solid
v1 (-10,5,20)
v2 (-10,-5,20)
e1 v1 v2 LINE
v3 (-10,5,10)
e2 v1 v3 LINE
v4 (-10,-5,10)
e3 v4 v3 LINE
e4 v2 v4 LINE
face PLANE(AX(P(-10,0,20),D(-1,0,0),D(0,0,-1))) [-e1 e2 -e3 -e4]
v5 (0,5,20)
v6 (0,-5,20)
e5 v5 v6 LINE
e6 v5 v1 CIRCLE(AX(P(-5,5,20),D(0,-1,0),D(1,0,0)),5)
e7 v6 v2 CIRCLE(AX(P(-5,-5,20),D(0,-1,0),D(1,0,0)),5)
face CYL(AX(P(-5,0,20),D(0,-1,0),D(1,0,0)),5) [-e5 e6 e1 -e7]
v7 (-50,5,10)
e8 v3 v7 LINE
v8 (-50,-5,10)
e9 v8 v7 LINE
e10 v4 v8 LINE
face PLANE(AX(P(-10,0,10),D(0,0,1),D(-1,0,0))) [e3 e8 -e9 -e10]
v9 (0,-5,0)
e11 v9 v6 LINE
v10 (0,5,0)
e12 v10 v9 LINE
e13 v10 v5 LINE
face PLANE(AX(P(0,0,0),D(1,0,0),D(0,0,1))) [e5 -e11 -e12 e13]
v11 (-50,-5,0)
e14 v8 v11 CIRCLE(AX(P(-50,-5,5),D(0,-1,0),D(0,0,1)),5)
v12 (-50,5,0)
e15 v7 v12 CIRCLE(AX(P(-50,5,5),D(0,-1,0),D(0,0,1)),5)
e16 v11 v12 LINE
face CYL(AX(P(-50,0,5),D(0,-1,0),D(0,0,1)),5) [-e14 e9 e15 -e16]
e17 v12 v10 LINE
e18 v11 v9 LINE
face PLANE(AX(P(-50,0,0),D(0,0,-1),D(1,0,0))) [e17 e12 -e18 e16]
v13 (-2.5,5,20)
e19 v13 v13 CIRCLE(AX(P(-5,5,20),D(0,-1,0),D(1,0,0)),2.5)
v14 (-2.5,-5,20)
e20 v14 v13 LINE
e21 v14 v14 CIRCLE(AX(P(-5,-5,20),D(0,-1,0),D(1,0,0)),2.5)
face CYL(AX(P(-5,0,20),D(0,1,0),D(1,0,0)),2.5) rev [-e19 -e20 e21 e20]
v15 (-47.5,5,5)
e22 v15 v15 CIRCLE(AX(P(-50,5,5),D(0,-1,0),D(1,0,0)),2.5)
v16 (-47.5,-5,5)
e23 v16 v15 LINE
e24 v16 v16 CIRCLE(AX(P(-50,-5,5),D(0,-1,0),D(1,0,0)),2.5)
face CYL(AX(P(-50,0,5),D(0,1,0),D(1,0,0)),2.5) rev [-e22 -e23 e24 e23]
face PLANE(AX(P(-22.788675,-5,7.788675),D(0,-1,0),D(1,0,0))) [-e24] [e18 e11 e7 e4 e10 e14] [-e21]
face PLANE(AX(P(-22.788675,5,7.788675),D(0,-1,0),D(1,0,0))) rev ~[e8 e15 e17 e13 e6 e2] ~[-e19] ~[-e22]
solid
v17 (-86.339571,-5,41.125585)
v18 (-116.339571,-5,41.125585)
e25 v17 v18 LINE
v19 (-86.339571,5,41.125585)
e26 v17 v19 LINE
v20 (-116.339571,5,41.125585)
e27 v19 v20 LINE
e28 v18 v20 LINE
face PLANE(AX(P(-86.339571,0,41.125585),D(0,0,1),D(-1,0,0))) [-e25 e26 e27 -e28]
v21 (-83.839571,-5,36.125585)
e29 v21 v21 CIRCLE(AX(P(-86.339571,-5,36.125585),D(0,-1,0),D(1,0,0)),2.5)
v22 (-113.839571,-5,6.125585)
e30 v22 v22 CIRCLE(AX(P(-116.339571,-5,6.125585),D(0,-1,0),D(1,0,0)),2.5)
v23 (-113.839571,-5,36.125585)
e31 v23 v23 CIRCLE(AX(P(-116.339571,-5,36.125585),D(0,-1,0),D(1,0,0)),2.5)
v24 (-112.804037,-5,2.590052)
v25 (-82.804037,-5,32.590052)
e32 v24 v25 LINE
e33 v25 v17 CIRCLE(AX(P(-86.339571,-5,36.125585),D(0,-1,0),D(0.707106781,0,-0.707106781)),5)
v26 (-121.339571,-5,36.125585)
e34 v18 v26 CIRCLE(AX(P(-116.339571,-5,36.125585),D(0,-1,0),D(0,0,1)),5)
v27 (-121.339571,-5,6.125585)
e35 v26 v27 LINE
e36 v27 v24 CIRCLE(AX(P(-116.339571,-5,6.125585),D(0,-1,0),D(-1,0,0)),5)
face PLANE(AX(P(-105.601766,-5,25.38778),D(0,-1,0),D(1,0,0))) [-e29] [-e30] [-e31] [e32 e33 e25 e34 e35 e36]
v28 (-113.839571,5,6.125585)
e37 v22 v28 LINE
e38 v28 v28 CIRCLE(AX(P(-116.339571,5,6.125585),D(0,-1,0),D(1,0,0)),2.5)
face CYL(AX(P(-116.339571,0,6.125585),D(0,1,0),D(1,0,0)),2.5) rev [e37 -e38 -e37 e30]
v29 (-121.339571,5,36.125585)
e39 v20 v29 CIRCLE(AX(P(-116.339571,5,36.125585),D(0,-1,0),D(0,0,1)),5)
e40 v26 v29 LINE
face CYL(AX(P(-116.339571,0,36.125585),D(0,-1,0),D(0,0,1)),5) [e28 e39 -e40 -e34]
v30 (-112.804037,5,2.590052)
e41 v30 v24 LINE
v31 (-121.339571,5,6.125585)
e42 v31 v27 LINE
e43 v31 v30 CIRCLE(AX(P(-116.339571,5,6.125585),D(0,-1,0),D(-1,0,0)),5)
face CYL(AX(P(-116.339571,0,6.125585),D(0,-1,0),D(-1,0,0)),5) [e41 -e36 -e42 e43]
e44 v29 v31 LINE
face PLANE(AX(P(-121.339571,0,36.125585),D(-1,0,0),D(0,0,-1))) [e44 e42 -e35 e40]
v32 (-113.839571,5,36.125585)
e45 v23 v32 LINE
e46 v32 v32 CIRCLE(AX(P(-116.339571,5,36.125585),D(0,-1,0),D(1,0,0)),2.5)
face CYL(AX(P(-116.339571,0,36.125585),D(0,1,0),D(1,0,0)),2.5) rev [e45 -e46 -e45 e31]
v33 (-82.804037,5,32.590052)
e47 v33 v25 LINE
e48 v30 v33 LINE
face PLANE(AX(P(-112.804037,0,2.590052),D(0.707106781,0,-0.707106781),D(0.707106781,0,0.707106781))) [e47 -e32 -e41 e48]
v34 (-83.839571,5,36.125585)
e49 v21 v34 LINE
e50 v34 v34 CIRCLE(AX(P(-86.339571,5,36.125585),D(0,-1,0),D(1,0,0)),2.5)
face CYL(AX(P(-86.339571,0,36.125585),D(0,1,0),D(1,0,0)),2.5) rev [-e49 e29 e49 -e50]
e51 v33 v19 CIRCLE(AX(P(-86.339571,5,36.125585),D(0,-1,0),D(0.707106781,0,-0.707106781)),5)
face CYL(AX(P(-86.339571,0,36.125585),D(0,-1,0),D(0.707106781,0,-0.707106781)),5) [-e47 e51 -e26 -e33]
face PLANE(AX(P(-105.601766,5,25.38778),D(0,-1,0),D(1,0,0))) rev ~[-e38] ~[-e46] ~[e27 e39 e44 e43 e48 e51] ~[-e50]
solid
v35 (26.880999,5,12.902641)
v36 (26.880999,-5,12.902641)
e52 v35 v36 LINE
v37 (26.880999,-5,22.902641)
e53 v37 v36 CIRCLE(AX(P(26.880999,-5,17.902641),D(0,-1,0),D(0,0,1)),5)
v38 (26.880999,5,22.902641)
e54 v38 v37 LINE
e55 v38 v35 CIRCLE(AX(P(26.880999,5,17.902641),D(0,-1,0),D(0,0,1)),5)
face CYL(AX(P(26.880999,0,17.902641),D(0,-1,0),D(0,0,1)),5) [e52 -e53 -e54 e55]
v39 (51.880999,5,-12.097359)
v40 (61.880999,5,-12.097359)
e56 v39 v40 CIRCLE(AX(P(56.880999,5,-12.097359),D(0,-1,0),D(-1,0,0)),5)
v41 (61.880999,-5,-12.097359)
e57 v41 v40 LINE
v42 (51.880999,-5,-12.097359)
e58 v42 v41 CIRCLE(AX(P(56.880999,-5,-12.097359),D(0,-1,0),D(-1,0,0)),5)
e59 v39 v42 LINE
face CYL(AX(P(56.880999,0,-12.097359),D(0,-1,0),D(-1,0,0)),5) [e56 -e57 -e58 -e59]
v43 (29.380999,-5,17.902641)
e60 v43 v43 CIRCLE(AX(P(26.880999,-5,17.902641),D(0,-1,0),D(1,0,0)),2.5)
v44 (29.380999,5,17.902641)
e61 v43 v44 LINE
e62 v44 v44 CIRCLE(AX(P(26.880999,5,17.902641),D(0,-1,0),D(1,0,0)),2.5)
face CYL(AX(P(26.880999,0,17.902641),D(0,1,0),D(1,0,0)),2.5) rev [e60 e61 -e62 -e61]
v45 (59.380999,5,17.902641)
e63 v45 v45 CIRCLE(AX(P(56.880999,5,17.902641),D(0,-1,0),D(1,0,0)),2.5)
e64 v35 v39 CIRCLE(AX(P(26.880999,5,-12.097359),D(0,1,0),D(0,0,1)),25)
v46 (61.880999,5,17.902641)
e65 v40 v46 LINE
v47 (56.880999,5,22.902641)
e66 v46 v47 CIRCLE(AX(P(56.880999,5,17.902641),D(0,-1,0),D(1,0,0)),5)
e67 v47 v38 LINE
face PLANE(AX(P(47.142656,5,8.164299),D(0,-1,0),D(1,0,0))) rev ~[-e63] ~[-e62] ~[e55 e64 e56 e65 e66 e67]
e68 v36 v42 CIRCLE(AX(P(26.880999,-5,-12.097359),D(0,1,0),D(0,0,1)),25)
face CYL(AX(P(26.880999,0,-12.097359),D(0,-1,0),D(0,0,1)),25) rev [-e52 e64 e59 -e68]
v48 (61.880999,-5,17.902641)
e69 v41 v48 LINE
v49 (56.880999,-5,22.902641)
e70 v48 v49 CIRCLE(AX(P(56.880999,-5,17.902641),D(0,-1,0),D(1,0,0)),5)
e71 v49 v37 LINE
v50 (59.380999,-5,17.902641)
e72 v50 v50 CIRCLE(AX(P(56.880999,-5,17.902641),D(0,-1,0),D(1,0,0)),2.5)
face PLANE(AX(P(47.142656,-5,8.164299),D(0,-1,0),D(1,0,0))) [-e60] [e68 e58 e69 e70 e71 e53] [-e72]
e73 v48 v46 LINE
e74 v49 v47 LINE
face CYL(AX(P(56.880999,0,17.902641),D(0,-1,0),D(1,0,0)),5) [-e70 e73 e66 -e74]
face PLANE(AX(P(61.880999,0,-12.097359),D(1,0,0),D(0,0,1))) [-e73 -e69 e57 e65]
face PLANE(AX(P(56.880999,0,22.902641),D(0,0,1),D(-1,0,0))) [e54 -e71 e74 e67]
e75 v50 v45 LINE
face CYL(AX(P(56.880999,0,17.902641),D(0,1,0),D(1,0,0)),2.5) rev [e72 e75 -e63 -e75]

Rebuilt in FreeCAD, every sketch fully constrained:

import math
import FreeCAD as App
import Part
import Sketcher
from FreeCAD import Vector
Q = App.Units.Quantity

doc = App.newDocument("Part")
body = doc.addObject("PartDesign::Body", "Body")

# Sketch on XZ plane
sketch1 = doc.addObject("Sketcher::SketchObject", "Sketch")
body.addObject(sketch1)
sketch1.AttachmentSupport = (doc.XZ_Plane, [""])
sketch1.MapMode = "FlatFace"
sketch1.addGeometry([
    Part.LineSegment(Vector(-50, 0, 0), Vector(0, 0, 0)),  # 0
    Part.LineSegment(Vector(0, 0, 0), Vector(0, 20, 0)),  # 1
    Part.ArcOfCircle(Part.Circle(Vector(-5, 20, 0), Vector(0, 0, 1), 5), math.radians(0), math.radians(180)),  # 2
    Part.LineSegment(Vector(-10, 20, 0), Vector(-10, 10, 0)),  # 3
    Part.LineSegment(Vector(-10, 10, 0), Vector(-50, 10, 0)),  # 4
    Part.ArcOfCircle(Part.Circle(Vector(-50, 5, 0), Vector(0, 0, 1), 5), math.radians(90), math.radians(270)),  # 5
    Part.Circle(Vector(-50, 5, 0), Vector(0, 0, 1), 2.5),  # 6
    Part.Circle(Vector(-5, 20, 0), Vector(0, 0, 1), 2.5),  # 7
], False)
sketch1.addConstraint([
    Sketcher.Constraint("Coincident", 0, 2, 1, 1),
    Sketcher.Constraint("Tangent", 1, 2, 2, 1),
    Sketcher.Constraint("Tangent", 2, 2, 3, 1),
    Sketcher.Constraint("Coincident", 3, 2, 4, 1),
    Sketcher.Constraint("Tangent", 4, 2, 5, 1),
    Sketcher.Constraint("Tangent", 5, 2, 0, 1),
    Sketcher.Constraint("Horizontal", 0),
    Sketcher.Constraint("Vertical", 1),
    Sketcher.Constraint("Vertical", 3),
    Sketcher.Constraint("Horizontal", 4),
    Sketcher.Constraint("Coincident", 0, 2, -1, 1),
    Sketcher.Constraint("Coincident", 6, 3, 5, 3),
    Sketcher.Constraint("Coincident", 7, 3, 2, 3),
    Sketcher.Constraint("Equal", 2, 5),
    Sketcher.Constraint("Equal", 6, 7),
    Sketcher.Constraint("Diameter", 6, Q("5 mm")),
    Sketcher.Constraint("Radius", 2, Q("5 mm")),
    Sketcher.Constraint("DistanceX", 0, 1, 0, 2, Q("50 mm")),
    Sketcher.Constraint("DistanceY", 1, 1, 1, 2, Q("20 mm")),
])
pad1 = doc.addObject("PartDesign::Pad", "Pad")
body.addObject(pad1)
pad1.Profile = sketch1
pad1.Length = 10
pad1.Midplane = True
body2 = doc.addObject("PartDesign::Body", "Body001")

# Sketch on XZ plane
sketch2 = doc.addObject("Sketcher::SketchObject", "Sketch001")
body2.addObject(sketch2)
sketch2.AttachmentSupport = (doc.getObject("XZ_Plane001"), [""])
sketch2.MapMode = "FlatFace"
sketch2.addGeometry([
    Part.LineSegment(Vector(-121.3, 36.1, 0), Vector(-121.3, 6.1, 0)),  # 0
    Part.ArcOfCircle(Part.Circle(Vector(-116.3, 6.1, 0), Vector(0, 0, 1), 5), math.radians(180), math.radians(315)),  # 1
    Part.LineSegment(Vector(-112.8, 2.6, 0), Vector(-82.8, 32.6, 0)),  # 2
    Part.ArcOfCircle(Part.Circle(Vector(-86.3, 36.1, 0), Vector(0, 0, 1), 5), math.radians(-45), math.radians(90)),  # 3
    Part.LineSegment(Vector(-86.3, 41.1, 0), Vector(-116.3, 41.1, 0)),  # 4
    Part.ArcOfCircle(Part.Circle(Vector(-116.3, 36.1, 0), Vector(0, 0, 1), 5), math.radians(90), math.radians(180)),  # 5
    Part.Circle(Vector(-116.3, 6.1, 0), Vector(0, 0, 1), 2.5),  # 6
    Part.Circle(Vector(-116.3, 36.1, 0), Vector(0, 0, 1), 2.5),  # 7
    Part.Circle(Vector(-86.3, 36.1, 0), Vector(0, 0, 1), 2.5),  # 8
], False)
sketch2.addConstraint([
    Sketcher.Constraint("Tangent", 0, 2, 1, 1),
    Sketcher.Constraint("Tangent", 1, 2, 2, 1),
    Sketcher.Constraint("Tangent", 2, 2, 3, 1),
    Sketcher.Constraint("Tangent", 3, 2, 4, 1),
    Sketcher.Constraint("Tangent", 4, 2, 5, 1),
    Sketcher.Constraint("Tangent", 5, 2, 0, 1),
    Sketcher.Constraint("Vertical", 0),
    Sketcher.Constraint("Horizontal", 4),
    Sketcher.Constraint("Coincident", 6, 3, 1, 3),
    Sketcher.Constraint("Coincident", 7, 3, 5, 3),
    Sketcher.Constraint("Coincident", 8, 3, 3, 3),
    Sketcher.Constraint("Equal", 1, 3),
    Sketcher.Constraint("Equal", 3, 5),
    Sketcher.Constraint("Equal", 6, 7),
    Sketcher.Constraint("Equal", 7, 8),
    Sketcher.Constraint("Equal", 4, 0),
    Sketcher.Constraint("Diameter", 6, Q("5 mm")),
    Sketcher.Constraint("Radius", 1, Q("5 mm")),
    Sketcher.Constraint("DistanceX", 4, 2, 4, 1, Q("30 mm")),
    Sketcher.Constraint("DistanceX", 1, 3, -1, 1, Q("116.339571 mm")),
    Sketcher.Constraint("DistanceY", -1, 1, 1, 2, Q("2.590052 mm")),
])
pad2 = doc.addObject("PartDesign::Pad", "Pad001")
body2.addObject(pad2)
pad2.Profile = sketch2
pad2.Length = 10
pad2.Midplane = True
body3 = doc.addObject("PartDesign::Body", "Body002")

# Sketch on XZ plane
sketch3 = doc.addObject("Sketcher::SketchObject", "Sketch002")
body3.addObject(sketch3)
sketch3.AttachmentSupport = (doc.getObject("XZ_Plane002"), [""])
sketch3.MapMode = "FlatFace"
sketch3.addGeometry([
    Part.LineSegment(Vector(56.9, 22.9, 0), Vector(26.9, 22.9, 0)),  # 0
    Part.ArcOfCircle(Part.Circle(Vector(26.9, 17.9, 0), Vector(0, 0, 1), 5), math.radians(90), math.radians(270)),  # 1
    Part.ArcOfCircle(Part.Circle(Vector(26.9, -12.1, 0), Vector(0, 0, 1), 25), math.radians(0), math.radians(90)),  # 2
    Part.ArcOfCircle(Part.Circle(Vector(56.9, -12.1, 0), Vector(0, 0, 1), 5), math.radians(180), math.radians(360)),  # 3
    Part.LineSegment(Vector(61.9, -12.1, 0), Vector(61.9, 17.9, 0)),  # 4
    Part.ArcOfCircle(Part.Circle(Vector(56.9, 17.9, 0), Vector(0, 0, 1), 5), math.radians(0), math.radians(90)),  # 5
    Part.Circle(Vector(26.9, 17.9, 0), Vector(0, 0, 1), 2.5),  # 6
    Part.Circle(Vector(56.9, 17.9, 0), Vector(0, 0, 1), 2.5),  # 7
], False)
sketch3.addConstraint([
    Sketcher.Constraint("Tangent", 0, 2, 1, 1),
    Sketcher.Constraint("Tangent", 1, 2, 2, 2),
    Sketcher.Constraint("Tangent", 2, 1, 3, 1),
    Sketcher.Constraint("Tangent", 3, 2, 4, 1),
    Sketcher.Constraint("Tangent", 4, 2, 5, 1),
    Sketcher.Constraint("Tangent", 5, 2, 0, 1),
    Sketcher.Constraint("Horizontal", 0),
    Sketcher.Constraint("Vertical", 4),
    Sketcher.Constraint("Coincident", 6, 3, 1, 3),
    Sketcher.Constraint("Coincident", 7, 3, 5, 3),
    Sketcher.Constraint("Equal", 1, 3),
    Sketcher.Constraint("Equal", 3, 5),
    Sketcher.Constraint("Equal", 6, 7),
    Sketcher.Constraint("Horizontal", 2, 3, 3, 3),
    Sketcher.Constraint("Vertical", 1, 3, 2, 3),
    Sketcher.Constraint("Diameter", 6, Q("5 mm")),
    Sketcher.Constraint("Radius", 1, Q("5 mm")),
    Sketcher.Constraint("Radius", 2, Q("25 mm")),
    Sketcher.Constraint("DistanceX", -1, 1, 1, 3, Q("26.880999 mm")),
    Sketcher.Constraint("DistanceY", -1, 1, 1, 3, Q("17.902641 mm")),
])
pad3 = doc.addObject("PartDesign::Pad", "Pad002")
body3.addObject(pad3)
pad3.Profile = sketch3
pad3.Length = 10
pad3.Midplane = True

doc.recompute()
